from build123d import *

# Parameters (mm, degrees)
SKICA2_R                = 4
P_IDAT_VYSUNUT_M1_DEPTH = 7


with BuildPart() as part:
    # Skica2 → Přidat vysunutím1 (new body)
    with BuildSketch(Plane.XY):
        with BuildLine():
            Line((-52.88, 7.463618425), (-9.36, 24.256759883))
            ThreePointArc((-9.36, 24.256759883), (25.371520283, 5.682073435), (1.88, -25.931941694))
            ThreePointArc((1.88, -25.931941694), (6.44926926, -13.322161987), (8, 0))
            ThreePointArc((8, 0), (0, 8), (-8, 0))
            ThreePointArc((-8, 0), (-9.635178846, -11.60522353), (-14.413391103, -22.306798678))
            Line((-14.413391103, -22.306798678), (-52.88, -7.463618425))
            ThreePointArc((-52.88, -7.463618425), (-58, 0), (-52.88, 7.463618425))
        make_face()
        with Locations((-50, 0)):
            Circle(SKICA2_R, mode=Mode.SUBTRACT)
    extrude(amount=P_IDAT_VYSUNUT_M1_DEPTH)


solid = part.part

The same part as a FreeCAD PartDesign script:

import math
import FreeCAD as App
import Part
import Sketcher

V = App.Vector

doc = App.newDocument("Part")
body = doc.addObject("PartDesign::Body", "Body")

# Sketch on XY plane
sketch1 = body.newObject("Sketcher::SketchObject", "Sketch")
sketch1.AttachmentSupport = (doc.getObject("XY_Plane"), [""])
sketch1.MapMode = "FlatFace"
sketch1.addGeometry(Part.LineSegment(V(-9.4, 24.3, 0), V(-52.9, 7.5, 0)), False)
sketch1.addGeometry(Part.ArcOfCircle(Part.Circle(V(-50, 0, 0), V(0, 0, 1), 8), math.radians(111), math.radians(249)), False)
sketch1.addGeometry(Part.LineSegment(V(-52.9, -7.5, 0), V(-14.4, -22.3, 0)), False)
sketch1.addGeometry(Part.ArcOfCircle(Part.Circle(V(-50, 0, 0), V(0, 0, 1), 42), math.radians(-32), math.radians(0)), False)
sketch1.addGeometry(Part.ArcOfCircle(Part.Circle(V(0, 0, 0), V(0, 0, 1), 8), math.radians(0), math.radians(180)), False)
sketch1.addGeometry(Part.ArcOfCircle(Part.Circle(V(-50, 0, 0), V(0, 0, 1), 58), math.radians(-27), math.radians(0)), False)
sketch1.addGeometry(Part.ArcOfCircle(Part.Circle(V(0, 0, 0), V(0, 0, 1), 26), math.radians(-86), math.radians(111)), False)
sketch1.addGeometry(Part.Circle(V(-50, 0, 0), V(0, 0, 1), 4), False)
sketch1.addConstraint(Sketcher.Constraint("Tangent", 0, 2, 1, 1))
sketch1.addConstraint(Sketcher.Constraint("Tangent", 1, 2, 2, 1))
sketch1.addConstraint(Sketcher.Constraint("Coincident", 2, 2, 3, 1))
sketch1.addConstraint(Sketcher.Constraint("Tangent", 3, 2, 4, 2))
sketch1.addConstraint(Sketcher.Constraint("Tangent", 4, 1, 5, 2))
sketch1.addConstraint(Sketcher.Constraint("Coincident", 5, 1, 6, 1))
sketch1.addConstraint(Sketcher.Constraint("Tangent", 6, 2, 0, 1))
sketch1.addConstraint(Sketcher.Constraint("Coincident", 4, 3, -1, 1))
sketch1.addConstraint(Sketcher.Constraint("Coincident", 6, 3, -1, 1))
sketch1.addConstraint(Sketcher.Constraint("Coincident", 3, 3, 1, 3))
sketch1.addConstraint(Sketcher.Constraint("Coincident", 5, 3, 1, 3))
sketch1.addConstraint(Sketcher.Constraint("Coincident", 7, 3, 1, 3))
sketch1.addConstraint(Sketcher.Constraint("Equal", 1, 4))
sketch1.addConstraint(Sketcher.Constraint("Symmetric", 0, 2, 1, 2, -1))
sketch1.addConstraint(Sketcher.Constraint("Diameter", 7, 8.0))
sketch1.addConstraint(Sketcher.Constraint("Radius", 1, 8.0))
sketch1.addConstraint(Sketcher.Constraint("Radius", 3, 42.0))
sketch1.addConstraint(Sketcher.Constraint("Radius", 6, 26.0))
pad1 = body.newObject("PartDesign::Pad", "Pad")
pad1.Profile = sketch1
pad1.Length = 7

doc.recompute()
